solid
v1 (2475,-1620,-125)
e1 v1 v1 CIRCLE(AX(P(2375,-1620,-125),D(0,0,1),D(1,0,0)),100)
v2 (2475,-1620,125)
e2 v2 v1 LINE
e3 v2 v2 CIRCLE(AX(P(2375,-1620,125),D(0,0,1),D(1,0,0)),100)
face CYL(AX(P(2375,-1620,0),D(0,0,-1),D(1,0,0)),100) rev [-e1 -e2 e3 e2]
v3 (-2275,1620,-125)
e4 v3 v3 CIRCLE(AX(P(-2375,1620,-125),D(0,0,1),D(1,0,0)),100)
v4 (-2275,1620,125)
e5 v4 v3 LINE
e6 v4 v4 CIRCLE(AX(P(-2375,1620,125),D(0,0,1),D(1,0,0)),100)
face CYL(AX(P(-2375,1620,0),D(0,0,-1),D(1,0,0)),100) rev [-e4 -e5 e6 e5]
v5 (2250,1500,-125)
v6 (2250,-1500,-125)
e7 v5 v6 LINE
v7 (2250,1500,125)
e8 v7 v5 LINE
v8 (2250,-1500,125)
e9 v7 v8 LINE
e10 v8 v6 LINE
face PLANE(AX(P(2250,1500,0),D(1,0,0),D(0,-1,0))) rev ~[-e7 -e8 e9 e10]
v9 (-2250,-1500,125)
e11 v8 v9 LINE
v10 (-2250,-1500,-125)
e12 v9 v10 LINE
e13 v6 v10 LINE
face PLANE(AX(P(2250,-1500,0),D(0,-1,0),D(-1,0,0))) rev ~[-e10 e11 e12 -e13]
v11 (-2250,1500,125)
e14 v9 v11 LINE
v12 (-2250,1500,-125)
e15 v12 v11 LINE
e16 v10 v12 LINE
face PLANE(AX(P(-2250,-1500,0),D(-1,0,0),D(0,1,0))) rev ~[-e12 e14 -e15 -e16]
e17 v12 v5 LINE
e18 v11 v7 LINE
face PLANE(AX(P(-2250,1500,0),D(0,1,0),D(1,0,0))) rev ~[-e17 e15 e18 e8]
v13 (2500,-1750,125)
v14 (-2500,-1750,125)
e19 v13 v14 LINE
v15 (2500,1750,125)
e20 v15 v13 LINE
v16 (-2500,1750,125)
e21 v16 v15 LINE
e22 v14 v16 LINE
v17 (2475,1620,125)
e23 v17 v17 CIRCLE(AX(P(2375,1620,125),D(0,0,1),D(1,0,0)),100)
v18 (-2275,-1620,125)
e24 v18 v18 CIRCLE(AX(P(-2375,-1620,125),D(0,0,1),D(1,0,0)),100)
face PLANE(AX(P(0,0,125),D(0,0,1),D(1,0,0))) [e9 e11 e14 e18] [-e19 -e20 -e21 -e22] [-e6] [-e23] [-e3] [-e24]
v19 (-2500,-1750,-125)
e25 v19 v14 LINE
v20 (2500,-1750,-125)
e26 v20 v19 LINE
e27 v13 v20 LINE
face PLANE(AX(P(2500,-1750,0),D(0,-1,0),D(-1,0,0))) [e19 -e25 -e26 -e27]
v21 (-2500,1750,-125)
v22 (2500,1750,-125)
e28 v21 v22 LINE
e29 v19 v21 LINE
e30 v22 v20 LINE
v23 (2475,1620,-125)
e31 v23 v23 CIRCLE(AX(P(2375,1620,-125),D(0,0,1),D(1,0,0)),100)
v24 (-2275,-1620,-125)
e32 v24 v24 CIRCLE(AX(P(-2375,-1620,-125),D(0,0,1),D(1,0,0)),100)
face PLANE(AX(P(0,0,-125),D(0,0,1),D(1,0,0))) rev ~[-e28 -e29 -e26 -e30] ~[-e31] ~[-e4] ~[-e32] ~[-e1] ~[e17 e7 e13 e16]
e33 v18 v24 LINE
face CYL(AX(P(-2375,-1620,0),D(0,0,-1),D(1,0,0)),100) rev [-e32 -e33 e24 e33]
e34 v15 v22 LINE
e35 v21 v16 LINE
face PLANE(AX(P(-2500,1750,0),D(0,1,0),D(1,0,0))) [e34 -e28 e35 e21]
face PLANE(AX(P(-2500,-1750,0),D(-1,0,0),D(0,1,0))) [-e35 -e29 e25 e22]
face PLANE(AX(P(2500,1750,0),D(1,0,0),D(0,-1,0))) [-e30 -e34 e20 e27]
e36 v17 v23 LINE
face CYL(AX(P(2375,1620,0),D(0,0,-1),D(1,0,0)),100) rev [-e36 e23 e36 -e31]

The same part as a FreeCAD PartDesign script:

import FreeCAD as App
import Part
import Sketcher


def add_polygon(sketch, points):
    """Adds a closed chain of lines whose ends are joined by coincident constraints."""
    first, n = sketch.GeometryCount, len(points)
    for a, b in zip(points, points[1:] + points[:1]):
        sketch.addGeometry(Part.LineSegment(App.Vector(*a, 0), App.Vector(*b, 0)), False)
    for i in range(n):
        sketch.addConstraint(Sketcher.Constraint("Coincident", first + i, 2, first + (i + 1) % n, 1))

doc = App.newDocument("Part")
body = doc.addObject("PartDesign::Body", "Body")

# Sketch on XY plane
sketch1 = body.newObject("Sketcher::SketchObject", "Sketch")
sketch1.AttachmentSupport = (doc.getObject("XY_Plane"), [""])
sketch1.MapMode = "FlatFace"
add_polygon(sketch1, [(2500, 1750), (-2500, 1750), (-2500, -1750), (2500, -1750)])  # lines 0-3
sketch1.addGeometry(Part.Circle(App.Vector(-2375, -1620, 0), App.Vector(0, 0, 1), 100), False)  # 4
sketch1.addGeometry(Part.Circle(App.Vector(2375, -1620, 0), App.Vector(0, 0, 1), 100), False)  # 5
sketch1.addGeometry(Part.Circle(App.Vector(-2375, 1620, 0), App.Vector(0, 0, 1), 100), False)  # 6
add_polygon(sketch1, [(-2250, -1500), (-2250, 1500), (2250, 1500), (2250, -1500)])  # lines 7-10
sketch1.addGeometry(Part.Circle(App.Vector(2375, 1620, 0), App.Vector(0, 0, 1), 100), False)  # 11
sketch1.addConstraint(Sketcher.Constraint("Horizontal", 0))
sketch1.addConstraint(Sketcher.Constraint("Vertical", 1))
sketch1.addConstraint(Sketcher.Constraint("Horizontal", 2))
sketch1.addConstraint(Sketcher.Constraint("Vertical", 3))
sketch1.addConstraint(Sketcher.Constraint("Vertical", 7))
sketch1.addConstraint(Sketcher.Constraint("Horizontal", 8))
sketch1.addConstraint(Sketcher.Constraint("Vertical", 9))
sketch1.addConstraint(Sketcher.Constraint("Horizontal", 10))
sketch1.addConstraint(Sketcher.Constraint("Equal", 4, 5))
sketch1.addConstraint(Sketcher.Constraint("Equal", 5, 6))
sketch1.addConstraint(Sketcher.Constraint("Equal", 6, 11))
sketch1.addConstraint(Sketcher.Constraint("Symmetric", 5, 3, 6, 3, -1, 1))
sketch1.addConstraint(Sketcher.Constraint("Symmetric", 4, 3, 11, 3, -1, 1))
sketch1.addConstraint(Sketcher.Constraint("Symmetric", 0, 2, 2, 2, -1, 1))
sketch1.addConstraint(Sketcher.Constraint("Symmetric", 7, 2, 9, 2, -1, 1))
sketch1.addConstraint(Sketcher.Constraint("Symmetric", 4, 3, 5, 3, -2))
sketch1.addConstraint(Sketcher.Constraint("Diameter", 4, 200.0))
sketch1.addConstraint(Sketcher.Constraint("DistanceX", 0, 2, 0, 1, 5000.0))
sketch1.addConstraint(Sketcher.Constraint("DistanceY", 1, 2, 1, 1, 3500.0))
sketch1.addConstraint(Sketcher.Constraint("DistanceX", 0, 2, 6, 3, 125.0))
sketch1.addConstraint(Sketcher.Constraint("DistanceX", 6, 3, 7, 2, 125.0))
sketch1.addConstraint(Sketcher.Constraint("DistanceY", 7, 2, 6, 3, 120.0))
sketch1.addConstraint(Sketcher.Constraint("DistanceY", 7, 2, 0, 2, 250.0))
pad1 = body.newObject("PartDesign::Pad", "Pad")
pad1.Profile = sketch1
pad1.Length = 250
pad1.Midplane = True

doc.recompute()
